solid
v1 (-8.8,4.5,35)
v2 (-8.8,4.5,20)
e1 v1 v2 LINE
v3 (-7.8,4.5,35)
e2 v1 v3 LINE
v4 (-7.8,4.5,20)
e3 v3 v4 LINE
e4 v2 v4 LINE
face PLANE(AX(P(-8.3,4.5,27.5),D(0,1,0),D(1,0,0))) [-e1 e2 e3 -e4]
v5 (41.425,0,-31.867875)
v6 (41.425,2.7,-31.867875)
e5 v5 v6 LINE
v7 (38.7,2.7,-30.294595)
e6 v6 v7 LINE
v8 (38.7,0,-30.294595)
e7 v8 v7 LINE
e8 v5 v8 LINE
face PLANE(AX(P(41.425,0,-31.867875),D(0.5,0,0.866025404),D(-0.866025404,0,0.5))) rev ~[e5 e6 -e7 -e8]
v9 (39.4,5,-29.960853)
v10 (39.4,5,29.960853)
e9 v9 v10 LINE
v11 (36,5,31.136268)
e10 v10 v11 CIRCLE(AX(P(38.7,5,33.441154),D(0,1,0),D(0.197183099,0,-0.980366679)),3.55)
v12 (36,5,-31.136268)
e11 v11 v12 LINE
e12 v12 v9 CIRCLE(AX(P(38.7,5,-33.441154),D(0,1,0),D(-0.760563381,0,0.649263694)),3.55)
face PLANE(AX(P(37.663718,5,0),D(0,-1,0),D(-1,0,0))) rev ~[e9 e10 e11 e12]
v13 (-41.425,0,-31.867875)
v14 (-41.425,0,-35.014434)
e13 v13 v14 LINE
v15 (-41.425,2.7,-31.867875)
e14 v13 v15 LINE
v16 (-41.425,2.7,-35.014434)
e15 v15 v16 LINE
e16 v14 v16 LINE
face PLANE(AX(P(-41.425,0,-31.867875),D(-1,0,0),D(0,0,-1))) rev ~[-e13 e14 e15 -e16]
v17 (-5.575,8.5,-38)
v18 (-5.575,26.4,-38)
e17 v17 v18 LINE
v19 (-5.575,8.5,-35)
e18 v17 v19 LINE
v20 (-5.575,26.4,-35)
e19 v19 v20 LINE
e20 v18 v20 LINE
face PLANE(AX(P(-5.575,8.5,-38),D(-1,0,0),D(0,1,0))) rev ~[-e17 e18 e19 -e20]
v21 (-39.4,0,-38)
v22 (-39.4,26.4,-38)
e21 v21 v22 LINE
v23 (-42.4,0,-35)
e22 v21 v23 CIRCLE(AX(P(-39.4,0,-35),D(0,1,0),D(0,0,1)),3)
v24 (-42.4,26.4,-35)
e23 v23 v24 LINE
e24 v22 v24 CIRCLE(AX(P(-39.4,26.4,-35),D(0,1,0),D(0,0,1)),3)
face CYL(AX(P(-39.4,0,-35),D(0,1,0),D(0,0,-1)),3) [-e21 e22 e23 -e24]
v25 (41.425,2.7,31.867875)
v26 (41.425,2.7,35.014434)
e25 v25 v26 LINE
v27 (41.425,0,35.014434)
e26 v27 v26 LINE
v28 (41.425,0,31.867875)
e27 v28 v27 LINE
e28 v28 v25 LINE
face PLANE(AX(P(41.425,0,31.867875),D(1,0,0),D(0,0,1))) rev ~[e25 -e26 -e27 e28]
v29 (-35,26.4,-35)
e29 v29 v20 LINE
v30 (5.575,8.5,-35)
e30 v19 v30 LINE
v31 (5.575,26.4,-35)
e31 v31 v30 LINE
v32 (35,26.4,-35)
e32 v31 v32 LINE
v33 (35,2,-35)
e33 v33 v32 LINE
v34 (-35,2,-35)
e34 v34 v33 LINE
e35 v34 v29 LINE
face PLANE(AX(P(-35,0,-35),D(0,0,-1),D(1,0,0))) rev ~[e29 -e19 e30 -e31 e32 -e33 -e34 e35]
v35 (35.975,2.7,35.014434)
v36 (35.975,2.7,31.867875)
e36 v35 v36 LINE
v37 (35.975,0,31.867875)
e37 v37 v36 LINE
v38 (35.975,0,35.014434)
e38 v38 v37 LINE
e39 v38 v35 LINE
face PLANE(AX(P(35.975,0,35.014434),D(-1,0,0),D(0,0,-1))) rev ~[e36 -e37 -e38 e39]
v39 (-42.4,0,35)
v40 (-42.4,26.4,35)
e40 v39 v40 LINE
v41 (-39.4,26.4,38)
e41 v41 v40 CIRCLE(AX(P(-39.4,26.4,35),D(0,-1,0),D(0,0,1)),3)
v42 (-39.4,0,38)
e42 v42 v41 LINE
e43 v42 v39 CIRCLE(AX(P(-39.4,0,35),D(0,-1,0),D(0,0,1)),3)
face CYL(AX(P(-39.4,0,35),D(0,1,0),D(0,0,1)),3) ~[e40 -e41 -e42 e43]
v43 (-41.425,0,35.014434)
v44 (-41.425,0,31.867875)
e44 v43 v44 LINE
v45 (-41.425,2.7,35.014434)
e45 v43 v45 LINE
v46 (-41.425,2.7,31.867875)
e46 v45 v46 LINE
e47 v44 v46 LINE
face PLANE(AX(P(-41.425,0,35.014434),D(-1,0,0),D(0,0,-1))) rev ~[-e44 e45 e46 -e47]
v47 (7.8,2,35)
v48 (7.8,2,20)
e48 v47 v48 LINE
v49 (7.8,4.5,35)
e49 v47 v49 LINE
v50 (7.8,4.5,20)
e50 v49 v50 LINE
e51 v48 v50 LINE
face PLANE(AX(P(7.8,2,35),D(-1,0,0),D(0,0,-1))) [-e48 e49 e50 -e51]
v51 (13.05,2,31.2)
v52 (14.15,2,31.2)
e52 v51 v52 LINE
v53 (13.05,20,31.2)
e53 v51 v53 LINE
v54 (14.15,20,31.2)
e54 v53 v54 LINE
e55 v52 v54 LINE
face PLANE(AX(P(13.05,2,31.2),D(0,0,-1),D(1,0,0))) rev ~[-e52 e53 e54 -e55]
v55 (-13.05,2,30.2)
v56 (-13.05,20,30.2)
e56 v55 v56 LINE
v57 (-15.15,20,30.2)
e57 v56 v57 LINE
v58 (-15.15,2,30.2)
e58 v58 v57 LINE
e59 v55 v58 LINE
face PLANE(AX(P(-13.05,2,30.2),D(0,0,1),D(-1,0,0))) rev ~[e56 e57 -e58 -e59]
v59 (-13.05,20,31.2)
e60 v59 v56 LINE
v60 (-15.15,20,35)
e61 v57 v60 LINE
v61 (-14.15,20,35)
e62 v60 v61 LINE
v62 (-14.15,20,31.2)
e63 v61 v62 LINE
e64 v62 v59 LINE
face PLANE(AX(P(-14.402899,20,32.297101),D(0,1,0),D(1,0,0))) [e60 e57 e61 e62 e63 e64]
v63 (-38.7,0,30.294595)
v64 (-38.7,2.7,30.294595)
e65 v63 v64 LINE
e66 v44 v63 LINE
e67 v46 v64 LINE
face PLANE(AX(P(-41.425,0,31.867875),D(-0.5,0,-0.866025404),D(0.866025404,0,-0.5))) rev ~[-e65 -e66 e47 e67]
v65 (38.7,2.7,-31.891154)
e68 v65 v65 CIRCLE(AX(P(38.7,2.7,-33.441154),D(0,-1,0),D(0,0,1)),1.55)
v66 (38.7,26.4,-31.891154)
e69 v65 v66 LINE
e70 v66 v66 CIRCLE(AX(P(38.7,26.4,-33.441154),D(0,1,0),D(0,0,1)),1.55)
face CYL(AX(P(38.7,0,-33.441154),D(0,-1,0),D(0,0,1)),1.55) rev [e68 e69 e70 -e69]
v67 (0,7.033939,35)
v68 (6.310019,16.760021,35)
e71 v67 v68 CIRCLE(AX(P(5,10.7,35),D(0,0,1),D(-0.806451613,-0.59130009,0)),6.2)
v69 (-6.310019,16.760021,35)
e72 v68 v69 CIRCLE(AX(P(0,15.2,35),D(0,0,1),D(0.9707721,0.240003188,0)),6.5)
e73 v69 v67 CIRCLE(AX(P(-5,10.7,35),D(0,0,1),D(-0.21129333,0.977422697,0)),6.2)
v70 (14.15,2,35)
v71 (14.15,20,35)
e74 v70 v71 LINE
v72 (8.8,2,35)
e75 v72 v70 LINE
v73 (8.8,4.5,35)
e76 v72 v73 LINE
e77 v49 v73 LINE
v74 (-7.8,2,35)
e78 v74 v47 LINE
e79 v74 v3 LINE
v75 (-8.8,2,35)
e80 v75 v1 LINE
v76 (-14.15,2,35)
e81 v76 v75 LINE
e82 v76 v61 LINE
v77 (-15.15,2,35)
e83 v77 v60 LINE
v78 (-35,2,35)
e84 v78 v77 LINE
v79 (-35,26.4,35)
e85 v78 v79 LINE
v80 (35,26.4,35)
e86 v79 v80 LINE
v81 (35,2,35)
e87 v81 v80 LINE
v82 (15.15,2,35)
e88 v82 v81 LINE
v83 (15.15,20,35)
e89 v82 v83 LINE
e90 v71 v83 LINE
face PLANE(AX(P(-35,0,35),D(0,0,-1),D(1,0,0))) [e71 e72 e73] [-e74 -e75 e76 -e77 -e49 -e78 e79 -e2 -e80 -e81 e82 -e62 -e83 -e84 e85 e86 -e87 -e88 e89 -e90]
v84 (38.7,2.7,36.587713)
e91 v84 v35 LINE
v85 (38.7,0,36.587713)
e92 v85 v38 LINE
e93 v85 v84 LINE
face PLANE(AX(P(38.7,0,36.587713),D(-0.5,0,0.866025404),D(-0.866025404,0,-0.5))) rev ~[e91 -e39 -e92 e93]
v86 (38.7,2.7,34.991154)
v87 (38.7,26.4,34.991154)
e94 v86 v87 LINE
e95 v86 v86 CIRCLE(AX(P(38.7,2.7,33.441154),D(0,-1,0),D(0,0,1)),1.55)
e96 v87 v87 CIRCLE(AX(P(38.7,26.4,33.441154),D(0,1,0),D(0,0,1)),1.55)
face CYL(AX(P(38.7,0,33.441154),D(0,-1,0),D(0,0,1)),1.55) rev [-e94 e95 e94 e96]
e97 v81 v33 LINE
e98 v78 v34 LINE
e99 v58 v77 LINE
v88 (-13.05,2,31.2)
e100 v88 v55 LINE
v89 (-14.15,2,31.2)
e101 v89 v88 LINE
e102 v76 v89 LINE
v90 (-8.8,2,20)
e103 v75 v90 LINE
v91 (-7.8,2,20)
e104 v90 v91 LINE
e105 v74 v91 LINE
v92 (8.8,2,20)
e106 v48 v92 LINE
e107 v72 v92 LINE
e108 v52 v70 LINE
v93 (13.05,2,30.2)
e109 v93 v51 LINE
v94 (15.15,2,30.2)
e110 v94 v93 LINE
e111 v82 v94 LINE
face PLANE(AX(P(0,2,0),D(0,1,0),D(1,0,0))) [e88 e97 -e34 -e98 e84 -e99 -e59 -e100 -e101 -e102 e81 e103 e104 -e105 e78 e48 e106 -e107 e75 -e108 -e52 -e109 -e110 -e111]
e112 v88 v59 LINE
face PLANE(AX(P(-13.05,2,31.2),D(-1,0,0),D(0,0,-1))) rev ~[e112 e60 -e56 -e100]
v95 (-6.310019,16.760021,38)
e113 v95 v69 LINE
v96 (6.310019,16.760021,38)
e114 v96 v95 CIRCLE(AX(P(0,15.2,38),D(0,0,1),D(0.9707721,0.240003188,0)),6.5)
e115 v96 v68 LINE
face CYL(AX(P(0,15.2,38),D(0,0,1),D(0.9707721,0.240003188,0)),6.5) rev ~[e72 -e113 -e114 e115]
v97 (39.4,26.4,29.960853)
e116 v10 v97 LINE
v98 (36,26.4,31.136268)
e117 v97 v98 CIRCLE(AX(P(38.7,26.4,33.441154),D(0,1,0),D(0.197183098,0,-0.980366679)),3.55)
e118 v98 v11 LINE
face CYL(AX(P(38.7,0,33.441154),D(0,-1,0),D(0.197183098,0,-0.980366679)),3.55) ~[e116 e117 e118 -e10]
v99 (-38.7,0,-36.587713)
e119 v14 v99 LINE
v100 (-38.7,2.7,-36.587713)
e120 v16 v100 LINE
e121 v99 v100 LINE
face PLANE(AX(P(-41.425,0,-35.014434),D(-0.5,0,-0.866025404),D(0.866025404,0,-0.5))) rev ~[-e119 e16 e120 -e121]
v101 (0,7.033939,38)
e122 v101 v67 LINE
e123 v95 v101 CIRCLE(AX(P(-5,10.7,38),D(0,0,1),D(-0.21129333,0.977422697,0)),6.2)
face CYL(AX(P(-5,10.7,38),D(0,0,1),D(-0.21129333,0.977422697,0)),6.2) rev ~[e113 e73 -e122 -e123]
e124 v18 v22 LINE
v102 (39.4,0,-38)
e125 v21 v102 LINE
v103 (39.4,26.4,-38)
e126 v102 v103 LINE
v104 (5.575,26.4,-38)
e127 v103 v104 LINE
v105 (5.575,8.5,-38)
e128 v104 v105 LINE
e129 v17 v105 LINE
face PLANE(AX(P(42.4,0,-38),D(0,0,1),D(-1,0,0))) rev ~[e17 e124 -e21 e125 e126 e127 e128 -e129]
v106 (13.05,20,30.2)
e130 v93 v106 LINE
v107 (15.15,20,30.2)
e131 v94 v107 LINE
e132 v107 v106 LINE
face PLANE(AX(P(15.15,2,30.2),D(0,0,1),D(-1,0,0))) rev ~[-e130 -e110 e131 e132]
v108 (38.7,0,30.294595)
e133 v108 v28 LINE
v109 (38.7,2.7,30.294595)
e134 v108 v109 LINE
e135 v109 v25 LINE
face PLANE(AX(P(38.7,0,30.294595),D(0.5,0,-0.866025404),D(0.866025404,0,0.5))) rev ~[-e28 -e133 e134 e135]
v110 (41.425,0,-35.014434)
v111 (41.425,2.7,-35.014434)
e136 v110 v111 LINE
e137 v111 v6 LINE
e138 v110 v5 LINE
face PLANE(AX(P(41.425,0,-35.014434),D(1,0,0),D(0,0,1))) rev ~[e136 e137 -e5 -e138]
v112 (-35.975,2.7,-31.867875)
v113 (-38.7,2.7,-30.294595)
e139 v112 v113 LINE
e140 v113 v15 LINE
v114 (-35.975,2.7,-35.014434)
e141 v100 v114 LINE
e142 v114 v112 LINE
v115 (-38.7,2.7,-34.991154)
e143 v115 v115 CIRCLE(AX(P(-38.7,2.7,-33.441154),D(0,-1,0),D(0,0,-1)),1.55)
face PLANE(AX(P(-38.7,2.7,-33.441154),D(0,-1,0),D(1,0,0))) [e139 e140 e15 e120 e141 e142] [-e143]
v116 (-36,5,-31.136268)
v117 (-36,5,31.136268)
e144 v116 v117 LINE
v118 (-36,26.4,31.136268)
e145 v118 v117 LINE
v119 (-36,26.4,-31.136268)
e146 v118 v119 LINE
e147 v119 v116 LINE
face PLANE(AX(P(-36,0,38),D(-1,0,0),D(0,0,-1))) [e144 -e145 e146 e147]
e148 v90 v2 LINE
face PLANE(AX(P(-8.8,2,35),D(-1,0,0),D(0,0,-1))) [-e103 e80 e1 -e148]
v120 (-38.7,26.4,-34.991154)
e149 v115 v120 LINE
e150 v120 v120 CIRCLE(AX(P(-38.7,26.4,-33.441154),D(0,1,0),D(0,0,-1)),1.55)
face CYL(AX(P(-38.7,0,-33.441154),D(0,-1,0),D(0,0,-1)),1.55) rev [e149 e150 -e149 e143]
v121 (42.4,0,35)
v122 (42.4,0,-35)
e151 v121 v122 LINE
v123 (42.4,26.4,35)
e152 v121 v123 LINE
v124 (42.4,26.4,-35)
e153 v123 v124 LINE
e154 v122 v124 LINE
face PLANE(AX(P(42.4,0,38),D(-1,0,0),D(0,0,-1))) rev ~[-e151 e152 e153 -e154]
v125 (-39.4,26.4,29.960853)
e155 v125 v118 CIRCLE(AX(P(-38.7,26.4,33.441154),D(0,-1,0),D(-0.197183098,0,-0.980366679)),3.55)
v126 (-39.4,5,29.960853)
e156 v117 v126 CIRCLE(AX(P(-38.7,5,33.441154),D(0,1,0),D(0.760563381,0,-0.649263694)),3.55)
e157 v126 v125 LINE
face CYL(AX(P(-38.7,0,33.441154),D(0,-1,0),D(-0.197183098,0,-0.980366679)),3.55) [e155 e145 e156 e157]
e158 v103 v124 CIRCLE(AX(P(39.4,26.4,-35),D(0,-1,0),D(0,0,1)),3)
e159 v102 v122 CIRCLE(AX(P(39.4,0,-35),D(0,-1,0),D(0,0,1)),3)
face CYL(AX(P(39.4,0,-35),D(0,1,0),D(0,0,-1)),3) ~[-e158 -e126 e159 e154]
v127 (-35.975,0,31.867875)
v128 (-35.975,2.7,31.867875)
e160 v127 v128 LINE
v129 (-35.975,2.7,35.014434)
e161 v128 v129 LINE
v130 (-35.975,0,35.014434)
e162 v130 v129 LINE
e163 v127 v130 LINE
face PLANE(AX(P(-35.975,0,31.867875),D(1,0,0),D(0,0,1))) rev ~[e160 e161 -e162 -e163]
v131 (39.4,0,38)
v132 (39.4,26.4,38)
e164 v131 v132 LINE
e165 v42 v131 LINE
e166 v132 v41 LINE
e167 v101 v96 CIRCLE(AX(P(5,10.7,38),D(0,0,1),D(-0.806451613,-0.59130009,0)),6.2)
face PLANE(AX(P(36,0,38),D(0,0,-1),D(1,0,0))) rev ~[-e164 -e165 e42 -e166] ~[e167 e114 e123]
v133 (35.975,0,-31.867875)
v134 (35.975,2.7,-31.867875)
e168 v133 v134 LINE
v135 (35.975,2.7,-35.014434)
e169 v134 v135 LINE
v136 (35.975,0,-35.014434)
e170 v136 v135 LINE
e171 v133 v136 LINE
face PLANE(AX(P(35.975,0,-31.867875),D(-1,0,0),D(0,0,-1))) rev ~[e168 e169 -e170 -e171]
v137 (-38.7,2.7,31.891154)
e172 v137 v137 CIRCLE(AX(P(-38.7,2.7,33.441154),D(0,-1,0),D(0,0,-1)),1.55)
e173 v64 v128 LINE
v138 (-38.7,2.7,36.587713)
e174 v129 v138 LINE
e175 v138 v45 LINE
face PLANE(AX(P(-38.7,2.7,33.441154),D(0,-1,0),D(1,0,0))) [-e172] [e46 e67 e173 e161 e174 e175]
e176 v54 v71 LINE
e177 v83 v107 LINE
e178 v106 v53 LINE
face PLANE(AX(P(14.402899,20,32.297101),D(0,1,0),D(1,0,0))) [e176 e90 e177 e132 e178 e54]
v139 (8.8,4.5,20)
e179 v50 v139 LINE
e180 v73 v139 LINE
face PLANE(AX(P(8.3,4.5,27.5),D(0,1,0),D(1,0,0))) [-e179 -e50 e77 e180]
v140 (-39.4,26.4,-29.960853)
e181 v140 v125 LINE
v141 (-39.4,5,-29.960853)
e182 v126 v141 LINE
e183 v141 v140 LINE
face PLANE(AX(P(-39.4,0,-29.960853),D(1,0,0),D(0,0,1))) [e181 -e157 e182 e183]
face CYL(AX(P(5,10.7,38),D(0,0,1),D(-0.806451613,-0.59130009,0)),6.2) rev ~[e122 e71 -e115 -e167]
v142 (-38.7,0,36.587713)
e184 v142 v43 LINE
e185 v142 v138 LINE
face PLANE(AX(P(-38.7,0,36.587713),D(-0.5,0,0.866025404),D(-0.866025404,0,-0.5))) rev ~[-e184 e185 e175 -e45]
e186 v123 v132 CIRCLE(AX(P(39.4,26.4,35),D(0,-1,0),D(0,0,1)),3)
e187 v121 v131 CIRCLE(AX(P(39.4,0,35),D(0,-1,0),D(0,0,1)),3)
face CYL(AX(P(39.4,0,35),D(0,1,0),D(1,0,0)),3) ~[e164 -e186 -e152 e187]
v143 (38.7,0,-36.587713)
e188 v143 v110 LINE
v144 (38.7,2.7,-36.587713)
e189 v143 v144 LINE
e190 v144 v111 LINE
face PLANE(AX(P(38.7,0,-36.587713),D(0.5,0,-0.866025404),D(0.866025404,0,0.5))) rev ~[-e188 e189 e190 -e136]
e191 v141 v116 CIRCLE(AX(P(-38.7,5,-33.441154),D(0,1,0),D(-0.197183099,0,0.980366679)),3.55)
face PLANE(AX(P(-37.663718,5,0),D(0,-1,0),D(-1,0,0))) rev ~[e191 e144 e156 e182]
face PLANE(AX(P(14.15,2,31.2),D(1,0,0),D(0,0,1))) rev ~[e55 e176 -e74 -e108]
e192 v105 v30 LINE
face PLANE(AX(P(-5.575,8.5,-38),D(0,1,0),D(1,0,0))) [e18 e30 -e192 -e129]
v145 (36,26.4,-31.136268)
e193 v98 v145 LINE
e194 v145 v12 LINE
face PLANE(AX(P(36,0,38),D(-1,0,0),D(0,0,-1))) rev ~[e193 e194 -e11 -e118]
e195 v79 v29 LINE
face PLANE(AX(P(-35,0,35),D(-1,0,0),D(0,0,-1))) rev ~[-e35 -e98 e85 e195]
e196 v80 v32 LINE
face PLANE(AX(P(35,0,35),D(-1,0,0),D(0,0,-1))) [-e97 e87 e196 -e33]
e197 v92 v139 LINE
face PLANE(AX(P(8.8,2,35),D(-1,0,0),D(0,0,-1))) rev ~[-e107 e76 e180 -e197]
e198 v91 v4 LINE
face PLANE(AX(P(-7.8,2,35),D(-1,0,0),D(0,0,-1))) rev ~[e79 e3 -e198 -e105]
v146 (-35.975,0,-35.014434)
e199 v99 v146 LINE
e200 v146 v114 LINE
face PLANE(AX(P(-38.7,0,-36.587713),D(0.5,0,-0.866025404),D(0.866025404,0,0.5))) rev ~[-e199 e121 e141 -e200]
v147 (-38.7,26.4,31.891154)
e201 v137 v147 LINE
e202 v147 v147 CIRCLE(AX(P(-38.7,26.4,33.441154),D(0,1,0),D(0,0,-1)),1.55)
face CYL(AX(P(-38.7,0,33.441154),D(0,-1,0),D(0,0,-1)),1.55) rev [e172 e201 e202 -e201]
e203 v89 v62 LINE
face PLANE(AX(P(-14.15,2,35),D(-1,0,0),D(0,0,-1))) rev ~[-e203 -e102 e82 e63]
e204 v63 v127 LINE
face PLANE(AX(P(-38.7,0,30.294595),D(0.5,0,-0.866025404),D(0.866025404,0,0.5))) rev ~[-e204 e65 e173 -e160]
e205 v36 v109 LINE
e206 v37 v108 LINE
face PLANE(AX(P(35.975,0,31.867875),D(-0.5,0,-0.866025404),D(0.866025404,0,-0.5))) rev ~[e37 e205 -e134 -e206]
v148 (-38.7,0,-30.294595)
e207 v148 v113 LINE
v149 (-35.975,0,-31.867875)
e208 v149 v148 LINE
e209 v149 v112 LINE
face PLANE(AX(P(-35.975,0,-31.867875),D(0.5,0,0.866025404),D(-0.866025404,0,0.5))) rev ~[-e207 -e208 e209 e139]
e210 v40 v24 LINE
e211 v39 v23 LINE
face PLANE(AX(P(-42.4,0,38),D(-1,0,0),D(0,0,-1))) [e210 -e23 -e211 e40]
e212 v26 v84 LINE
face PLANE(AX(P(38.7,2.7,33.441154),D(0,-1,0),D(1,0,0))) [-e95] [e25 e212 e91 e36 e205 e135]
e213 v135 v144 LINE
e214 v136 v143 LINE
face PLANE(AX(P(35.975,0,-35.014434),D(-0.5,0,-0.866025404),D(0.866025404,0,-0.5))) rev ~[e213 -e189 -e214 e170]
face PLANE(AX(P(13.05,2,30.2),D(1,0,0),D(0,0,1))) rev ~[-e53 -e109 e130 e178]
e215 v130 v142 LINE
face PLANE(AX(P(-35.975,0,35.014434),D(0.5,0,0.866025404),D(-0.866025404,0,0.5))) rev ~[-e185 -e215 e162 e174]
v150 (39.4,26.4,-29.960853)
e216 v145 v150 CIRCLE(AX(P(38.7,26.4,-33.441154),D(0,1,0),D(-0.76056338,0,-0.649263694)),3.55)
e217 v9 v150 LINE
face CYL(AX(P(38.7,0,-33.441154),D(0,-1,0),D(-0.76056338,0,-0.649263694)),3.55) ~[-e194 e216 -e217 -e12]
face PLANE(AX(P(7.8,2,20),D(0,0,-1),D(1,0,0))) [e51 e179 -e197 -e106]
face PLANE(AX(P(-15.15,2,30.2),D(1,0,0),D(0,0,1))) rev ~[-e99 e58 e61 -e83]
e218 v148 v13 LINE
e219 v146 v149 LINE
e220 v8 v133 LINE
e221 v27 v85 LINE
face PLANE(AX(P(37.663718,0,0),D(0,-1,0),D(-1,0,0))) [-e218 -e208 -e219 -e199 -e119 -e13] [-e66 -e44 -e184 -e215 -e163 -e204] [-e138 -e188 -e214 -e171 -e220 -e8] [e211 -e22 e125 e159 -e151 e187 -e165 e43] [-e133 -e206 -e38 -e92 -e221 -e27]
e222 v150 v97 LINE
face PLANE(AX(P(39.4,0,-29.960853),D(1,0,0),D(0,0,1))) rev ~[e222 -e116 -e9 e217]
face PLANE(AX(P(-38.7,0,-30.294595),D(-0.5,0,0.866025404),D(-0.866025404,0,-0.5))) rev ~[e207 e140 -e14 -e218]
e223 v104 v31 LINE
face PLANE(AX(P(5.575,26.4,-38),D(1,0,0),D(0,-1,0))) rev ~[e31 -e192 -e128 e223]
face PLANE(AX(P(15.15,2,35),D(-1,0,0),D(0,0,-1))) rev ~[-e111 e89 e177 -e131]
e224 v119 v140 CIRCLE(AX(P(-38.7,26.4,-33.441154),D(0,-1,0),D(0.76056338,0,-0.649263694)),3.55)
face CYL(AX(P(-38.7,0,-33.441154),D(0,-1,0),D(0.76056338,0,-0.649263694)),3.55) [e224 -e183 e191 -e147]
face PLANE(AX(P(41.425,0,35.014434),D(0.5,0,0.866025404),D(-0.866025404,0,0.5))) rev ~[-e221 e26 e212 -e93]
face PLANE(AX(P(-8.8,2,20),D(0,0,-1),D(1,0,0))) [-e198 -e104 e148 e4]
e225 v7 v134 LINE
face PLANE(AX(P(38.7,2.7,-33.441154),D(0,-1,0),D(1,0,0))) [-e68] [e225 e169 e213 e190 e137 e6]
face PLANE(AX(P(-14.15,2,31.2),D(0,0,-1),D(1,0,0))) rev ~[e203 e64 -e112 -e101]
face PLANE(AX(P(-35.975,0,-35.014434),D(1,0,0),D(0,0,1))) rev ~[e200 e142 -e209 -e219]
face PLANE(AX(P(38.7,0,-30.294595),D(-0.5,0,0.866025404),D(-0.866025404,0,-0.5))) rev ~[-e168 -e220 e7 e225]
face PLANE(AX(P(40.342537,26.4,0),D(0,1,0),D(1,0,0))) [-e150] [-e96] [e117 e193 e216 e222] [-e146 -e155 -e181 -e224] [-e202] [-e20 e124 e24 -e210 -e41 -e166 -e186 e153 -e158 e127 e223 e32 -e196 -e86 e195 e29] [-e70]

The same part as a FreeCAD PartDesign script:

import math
import FreeCAD as App
import Part
import Sketcher
Q = App.Units.Quantity


def edges_at(feature, points):
    """Names of the edges that pass closest to the given points."""
    edges = feature.Shape.Edges
    near = lambda p: min(range(len(edges)), key=lambda i: edges[i].distToShape(Part.Vertex(*p))[0])
    return sorted({f"Edge{near(p) + 1}" for p in points})

doc = App.newDocument("Part")
params = doc.addObject("Spreadsheet::Sheet", "Params")
for row, (alias, value) in enumerate([
    ("sketch1_width", "70 mm"),
    ("pad1_length", "2 mm"),
    ("sketch2_width", "1 mm"),
    ("sketch2_width2", "1.1 mm"),
    ("sketch2_height", "3.8 mm"),
    ("pad2_length", "18 mm"),
    ("sketch3_width", "1 mm"),
    ("sketch3_height", "15 mm"),
    ("pad3_length", "2.5 mm"),
    ("sketch4_width", "72 mm"),
    ("sketch4_width2", "70 mm"),
    ("sketch4_height", "76 mm"),
    ("pad4_length", "26.4 mm"),
    ("sketch5_diameter", "3.1 mm"),
    ("sketch5_height", "76 mm"),
    ("sketch5_radius", "3.55 mm"),
    ("sketch5_width", "6.4 mm"),
    ("pad5_length", "26.4 mm"),
    ("sketch6_radius", "3.55 mm"),
    ("pad6_length", "5 mm"),
    ("sketch7_radius", "6.5 mm"),
    ("sketch7_radius2", "6.2 mm"),
    ("pocket1_length", "25 mm"),
    ("fillet_radius", "3 mm"),
    ("pocket2_length", "2.7 mm"),
    ("sketch9_height", "17.9 mm"),
    ("sketch9_width", "11.15 mm"),
    ("pocket3_length", "10 mm"),
], start=1):
    params.set(f"A{row}", alias)
    params.set(f"B{row}", "=" + value)
    params.setAlias(f"B{row}", alias)

body = doc.addObject("PartDesign::Body", "Body")

# Sketch on XZ plane
sketch1 = doc.addObject("Sketcher::SketchObject", "Sketch")
body.addObject(sketch1)
sketch1.AttachmentSupport = (doc.XZ_Plane, [""])
sketch1.MapMode = "FlatFace"
sketch1.addGeometry(Part.LineSegment(App.Vector(-35, -35, 0), App.Vector(-35, 35, 0)), False)
sketch1.addGeometry(Part.LineSegment(App.Vector(-35, 35, 0), App.Vector(35, 35, 0)), False)
sketch1.addGeometry(Part.LineSegment(App.Vector(35, 35, 0), App.Vector(35, -35, 0)), False)
sketch1.addGeometry(Part.LineSegment(App.Vector(35, -35, 0), App.Vector(-35, -35, 0)), False)
sketch1.addConstraint(Sketcher.Constraint("Coincident", 0, 2, 1, 1))
sketch1.addConstraint(Sketcher.Constraint("Coincident", 1, 2, 2, 1))
sketch1.addConstraint(Sketcher.Constraint("Coincident", 2, 2, 3, 1))
sketch1.addConstraint(Sketcher.Constraint("Coincident", 3, 2, 0, 1))
sketch1.addConstraint(Sketcher.Constraint("Vertical", 0))
sketch1.addConstraint(Sketcher.Constraint("Horizontal", 1))
sketch1.addConstraint(Sketcher.Constraint("Vertical", 2))
sketch1.addConstraint(Sketcher.Constraint("Horizontal", 3))
sketch1.addConstraint(Sketcher.Constraint("Symmetric", 0, 2, 2, 2, -1, 1))
sketch1.addConstraint(Sketcher.Constraint("Equal", 3, 0))
sketch1.addConstraint(Sketcher.Constraint("DistanceX", 1, 1, 1, 2, Q("70 mm")))
sketch1.setExpression("Constraints[10]", "Params.sketch1_width")
pad1 = doc.addObject("PartDesign::Pad", "Pad")
body.addObject(pad1)
pad1.Profile = sketch1
pad1.setExpression("Length", "Params.pad1_length")
pad1.Reversed = True

# Sketch on XZ plane
sketch2 = doc.addObject("Sketcher::SketchObject", "Sketch001")
body.addObject(sketch2)
sketch2.AttachmentSupport = (doc.XZ_Plane, [""])
sketch2.MapMode = "FlatFace"
sketch2.AttachmentOffset = App.Placement(App.Vector(0, 0, -2), App.Rotation())
sketch2.addGeometry(Part.LineSegment(App.Vector(13.1, 31.2, 0), App.Vector(14.2, 31.2, 0)), False)
sketch2.addGeometry(Part.LineSegment(App.Vector(14.2, 31.2, 0), App.Vector(14.2, 35, 0)), False)
sketch2.addGeometry(Part.LineSegment(App.Vector(14.2, 35, 0), App.Vector(15.2, 35, 0)), False)
sketch2.addGeometry(Part.LineSegment(App.Vector(15.2, 35, 0), App.Vector(15.2, 30.2, 0)), False)
sketch2.addGeometry(Part.LineSegment(App.Vector(15.2, 30.2, 0), App.Vector(13.1, 30.2, 0)), False)
sketch2.addGeometry(Part.LineSegment(App.Vector(13.1, 30.2, 0), App.Vector(13.1, 31.2, 0)), False)
sketch2.addGeometry(Part.LineSegment(App.Vector(-15.2, 35, 0), App.Vector(-14.2, 35, 0)), False)
sketch2.addGeometry(Part.LineSegment(App.Vector(-14.2, 35, 0), App.Vector(-14.2, 31.2, 0)), False)
sketch2.addGeometry(Part.LineSegment(App.Vector(-14.2, 31.2, 0), App.Vector(-13.1, 31.2, 0)), False)
sketch2.addGeometry(Part.LineSegment(App.Vector(-13.1, 31.2, 0), App.Vector(-13.1, 30.2, 0)), False)
sketch2.addGeometry(Part.LineSegment(App.Vector(-13.1, 30.2, 0), App.Vector(-15.2, 30.2, 0)), False)
sketch2.addGeometry(Part.LineSegment(App.Vector(-15.2, 30.2, 0), App.Vector(-15.2, 35, 0)), False)
sketch2.addConstraint(Sketcher.Constraint("Coincident", 0, 2, 1, 1))
sketch2.addConstraint(Sketcher.Constraint("Coincident", 1, 2, 2, 1))
sketch2.addConstraint(Sketcher.Constraint("Coincident", 2, 2, 3, 1))
sketch2.addConstraint(Sketcher.Constraint("Coincident", 3, 2, 4, 1))
sketch2.addConstraint(Sketcher.Constraint("Coincident", 4, 2, 5, 1))
sketch2.addConstraint(Sketcher.Constraint("Coincident", 5, 2, 0, 1))
sketch2.addConstraint(Sketcher.Constraint("Coincident", 6, 2, 7, 1))
sketch2.addConstraint(Sketcher.Constraint("Coincident", 7, 2, 8, 1))
sketch2.addConstraint(Sketcher.Constraint("Coincident", 8, 2, 9, 1))
sketch2.addConstraint(Sketcher.Constraint("Coincident", 9, 2, 10, 1))
sketch2.addConstraint(Sketcher.Constraint("Coincident", 10, 2, 11, 1))
sketch2.addConstraint(Sketcher.Constraint("Coincident", 11, 2, 6, 1))
sketch2.addConstraint(Sketcher.Constraint("Horizontal", 0))
sketch2.addConstraint(Sketcher.Constraint("Vertical", 1))
sketch2.addConstraint(Sketcher.Constraint("Horizontal", 2))
sketch2.addConstraint(Sketcher.Constraint("Vertical", 3))
sketch2.addConstraint(Sketcher.Constraint("Horizontal", 4))
sketch2.addConstraint(Sketcher.Constraint("Vertical", 5))
sketch2.addConstraint(Sketcher.Constraint("Horizontal", 6))
sketch2.addConstraint(Sketcher.Constraint("Vertical", 7))
sketch2.addConstraint(Sketcher.Constraint("Horizontal", 8))
sketch2.addConstraint(Sketcher.Constraint("Vertical", 9))
sketch2.addConstraint(Sketcher.Constraint("Horizontal", 10))
sketch2.addConstraint(Sketcher.Constraint("Vertical", 11))
sketch2.addConstraint(Sketcher.Constraint("Symmetric", 1, 2, 6, 2, -2))
sketch2.addConstraint(Sketcher.Constraint("Symmetric", 5, 2, 8, 2, -2))
sketch2.addConstraint(Sketcher.Constraint("Symmetric", 3, 2, 10, 2, -2))
sketch2.addConstraint(Sketcher.Constraint("Equal", 6, 5))
sketch2.addConstraint(Sketcher.Constraint("DistanceX", 2, 1, 2, 2, Q("1 mm")))
sketch2.addConstraint(Sketcher.Constraint("DistanceX", 0, 1, 0, 2, Q("1.1 mm")))
sketch2.addConstraint(Sketcher.Constraint("DistanceY", 1, 1, 1, 2, Q("3.8 mm")))
sketch2.addConstraint(Sketcher.Constraint("DistanceY", -1, 1, 1, 2, Q("35 mm")))
sketch2.addConstraint(Sketcher.Constraint("DistanceX", 6, 2, 5, 2, Q("27.2 mm")))
sketch2.setExpression("Constraints[28]", "Params.sketch2_width")
sketch2.setExpression("Constraints[29]", "Params.sketch2_width2")
sketch2.setExpression("Constraints[30]", "Params.sketch2_height")
pad2 = doc.addObject("PartDesign::Pad", "Pad001")
body.addObject(pad2)
pad2.Profile = sketch2
pad2.setExpression("Length", "Params.pad2_length")
pad2.Reversed = True

# Sketch on XZ plane
sketch3 = doc.addObject("Sketcher::SketchObject", "Sketch002")
body.addObject(sketch3)
sketch3.AttachmentSupport = (doc.XZ_Plane, [""])
sketch3.MapMode = "FlatFace"
sketch3.AttachmentOffset = App.Placement(App.Vector(0, 0, -2), App.Rotation())
sketch3.addGeometry(Part.LineSegment(App.Vector(-8.8, 20, 0), App.Vector(-8.8, 35, 0)), False)
sketch3.addGeometry(Part.LineSegment(App.Vector(-8.8, 35, 0), App.Vector(-7.8, 35, 0)), False)
sketch3.addGeometry(Part.LineSegment(App.Vector(-7.8, 35, 0), App.Vector(-7.8, 20, 0)), False)
sketch3.addGeometry(Part.LineSegment(App.Vector(-7.8, 20, 0), App.Vector(-8.8, 20, 0)), False)
sketch3.addGeometry(Part.LineSegment(App.Vector(7.8, 20, 0), App.Vector(7.8, 35, 0)), False)
sketch3.addGeometry(Part.LineSegment(App.Vector(7.8, 35, 0), App.Vector(8.8, 35, 0)), False)
sketch3.addGeometry(Part.LineSegment(App.Vector(8.8, 35, 0), App.Vector(8.8, 20, 0)), False)
sketch3.addGeometry(Part.LineSegment(App.Vector(8.8, 20, 0), App.Vector(7.8, 20, 0)), False)
sketch3.addConstraint(Sketcher.Constraint("Coincident", 0, 2, 1, 1))
sketch3.addConstraint(Sketcher.Constraint("Coincident", 1, 2, 2, 1))
sketch3.addConstraint(Sketcher.Constraint("Coincident", 2, 2, 3, 1))
sketch3.addConstraint(Sketcher.Constraint("Coincident", 3, 2, 0, 1))
sketch3.addConstraint(Sketcher.Constraint("Coincident", 4, 2, 5, 1))
sketch3.addConstraint(Sketcher.Constraint("Coincident", 5, 2, 6, 1))
sketch3.addConstraint(Sketcher.Constraint("Coincident", 6, 2, 7, 1))
sketch3.addConstraint(Sketcher.Constraint("Coincident", 7, 2, 4, 1))
sketch3.addConstraint(Sketcher.Constraint("Vertical", 0))
sketch3.addConstraint(Sketcher.Constraint("Horizontal", 1))
sketch3.addConstraint(Sketcher.Constraint("Vertical", 2))
sketch3.addConstraint(Sketcher.Constraint("Horizontal", 3))
sketch3.addConstraint(Sketcher.Constraint("Vertical", 4))
sketch3.addConstraint(Sketcher.Constraint("Horizontal", 5))
sketch3.addConstraint(Sketcher.Constraint("Vertical", 6))
sketch3.addConstraint(Sketcher.Constraint("Horizontal", 7))
sketch3.addConstraint(Sketcher.Constraint("Symmetric", 1, 2, 4, 2, -2))
sketch3.addConstraint(Sketcher.Constraint("Symmetric", 3, 2, 6, 2, -2))
sketch3.addConstraint(Sketcher.Constraint("DistanceX", 1, 1, 1, 2, Q("1 mm")))
sketch3.addConstraint(Sketcher.Constraint("DistanceY", 0, 1, 0, 2, Q("15 mm")))
sketch3.addConstraint(Sketcher.Constraint("DistanceY", -1, 1, 0, 2, Q("35 mm")))
sketch3.addConstraint(Sketcher.Constraint("DistanceX", 0, 2, -1, 1, Q("8.8 mm")))
sketch3.setExpression("Constraints[18]", "Params.sketch3_width")
sketch3.setExpression("Constraints[19]", "Params.sketch3_height")
pad3 = doc.addObject("PartDesign::Pad", "Pad002")
body.addObject(pad3)
pad3.Profile = sketch3
pad3.setExpression("Length", "Params.pad3_length")
pad3.Reversed = True

# Sketch on XZ plane
sketch4 = doc.addObject("Sketcher::SketchObject", "Sketch003")
body.addObject(sketch4)
sketch4.AttachmentSupport = (doc.XZ_Plane, [""])
sketch4.MapMode = "FlatFace"
sketch4.addGeometry(Part.LineSegment(App.Vector(-36, -38, 0), App.Vector(-36, 38, 0)), False)
sketch4.addGeometry(Part.LineSegment(App.Vector(-36, 38, 0), App.Vector(36, 38, 0)), False)
sketch4.addGeometry(Part.LineSegment(App.Vector(36, 38, 0), App.Vector(36, -38, 0)), False)
sketch4.addGeometry(Part.LineSegment(App.Vector(36, -38, 0), App.Vector(-36, -38, 0)), False)
sketch4.addGeometry(Part.LineSegment(App.Vector(35, 35, 0), App.Vector(-35, 35, 0)), False)
sketch4.addGeometry(Part.LineSegment(App.Vector(-35, 35, 0), App.Vector(-35, -35, 0)), False)
sketch4.addGeometry(Part.LineSegment(App.Vector(-35, -35, 0), App.Vector(35, -35, 0)), False)
sketch4.addGeometry(Part.LineSegment(App.Vector(35, -35, 0), App.Vector(35, 35, 0)), False)
sketch4.addConstraint(Sketcher.Constraint("Coincident", 0, 2, 1, 1))
sketch4.addConstraint(Sketcher.Constraint("Coincident", 1, 2, 2, 1))
sketch4.addConstraint(Sketcher.Constraint("Coincident", 2, 2, 3, 1))
sketch4.addConstraint(Sketcher.Constraint("Coincident", 3, 2, 0, 1))
sketch4.addConstraint(Sketcher.Constraint("Coincident", 4, 2, 5, 1))
sketch4.addConstraint(Sketcher.Constraint("Coincident", 5, 2, 6, 1))
sketch4.addConstraint(Sketcher.Constraint("Coincident", 6, 2, 7, 1))
sketch4.addConstraint(Sketcher.Constraint("Coincident", 7, 2, 4, 1))
sketch4.addConstraint(Sketcher.Constraint("Vertical", 0))
sketch4.addConstraint(Sketcher.Constraint("Horizontal", 1))
sketch4.addConstraint(Sketcher.Constraint("Vertical", 2))
sketch4.addConstraint(Sketcher.Constraint("Horizontal", 3))
sketch4.addConstraint(Sketcher.Constraint("Horizontal", 4))
sketch4.addConstraint(Sketcher.Constraint("Vertical", 5))
sketch4.addConstraint(Sketcher.Constraint("Horizontal", 6))
sketch4.addConstraint(Sketcher.Constraint("Vertical", 7))
sketch4.addConstraint(Sketcher.Constraint("Symmetric", 0, 2, 2, 2, -1, 1))
sketch4.addConstraint(Sketcher.Constraint("Symmetric", 4, 2, 6, 2, -1, 1))
sketch4.addConstraint(Sketcher.Constraint("Equal", 6, 5))
sketch4.addConstraint(Sketcher.Constraint("DistanceX", 1, 1, 1, 2, Q("72 mm")))
sketch4.addConstraint(Sketcher.Constraint("DistanceX", 4, 2, 4, 1, Q("70 mm")))
sketch4.addConstraint(Sketcher.Constraint("DistanceY", 0, 1, 0, 2, Q("76 mm")))
sketch4.setExpression("Constraints[19]", "Params.sketch4_width")
sketch4.setExpression("Constraints[20]", "Params.sketch4_width2")
sketch4.setExpression("Constraints[21]", "Params.sketch4_height")
pad4 = doc.addObject("PartDesign::Pad", "Pad003")
body.addObject(pad4)
pad4.Profile = sketch4
pad4.setExpression("Length", "Params.pad4_length")
pad4.Reversed = True

# Sketch on XZ plane
sketch5 = doc.addObject("Sketcher::SketchObject", "Sketch004")
body.addObject(sketch5)
sketch5.AttachmentSupport = (doc.XZ_Plane, [""])
sketch5.MapMode = "FlatFace"
sketch5.addGeometry(Part.LineSegment(App.Vector(36, 38, 0), App.Vector(42.4, 38, 0)), False)
sketch5.addGeometry(Part.LineSegment(App.Vector(42.4, 38, 0), App.Vector(42.4, -38, 0)), False)
sketch5.addGeometry(Part.LineSegment(App.Vector(42.4, -38, 0), App.Vector(36, -38, 0)), False)
sketch5.addGeometry(Part.LineSegment(App.Vector(36, -38, 0), App.Vector(36, -35.7, 0)), False)
sketch5.addGeometry(Part.ArcOfCircle(Part.Circle(App.Vector(38.7, -33.4, 0), App.Vector(0, 0, 1), 3.6), math.radians(79), math.radians(220)), False)
sketch5.addGeometry(Part.LineSegment(App.Vector(39.4, -30, 0), App.Vector(39.4, 30, 0)), False)
sketch5.addGeometry(Part.ArcOfCircle(Part.Circle(App.Vector(38.7, 33.4, 0), App.Vector(0, 0, 1), 3.6), math.radians(140), math.radians(281)), False)
sketch5.addGeometry(Part.LineSegment(App.Vector(36, 35.7, 0), App.Vector(36, 38, 0)), False)
sketch5.addGeometry(Part.Circle(App.Vector(38.7, 33.4, 0), App.Vector(0, 0, 1), 1.6), False)
sketch5.addGeometry(Part.Circle(App.Vector(38.7, -33.4, 0), App.Vector(0, 0, 1), 1.6), False)
sketch5.addGeometry(Part.LineSegment(App.Vector(-36, -35.7, 0), App.Vector(-36, -38, 0)), False)
sketch5.addGeometry(Part.LineSegment(App.Vector(-36, -38, 0), App.Vector(-42.4, -38, 0)), False)
sketch5.addGeometry(Part.LineSegment(App.Vector(-42.4, -38, 0), App.Vector(-42.4, 38, 0)), False)
sketch5.addGeometry(Part.LineSegment(App.Vector(-42.4, 38, 0), App.Vector(-36, 38, 0)), False)
sketch5.addGeometry(Part.LineSegment(App.Vector(-36, 38, 0), App.Vector(-36, 35.7, 0)), False)
sketch5.addGeometry(Part.ArcOfCircle(Part.Circle(App.Vector(-38.7, 33.4, 0), App.Vector(0, 0, 1), 3.6), math.radians(-101), math.radians(40)), False)
sketch5.addGeometry(Part.LineSegment(App.Vector(-39.4, 30, 0), App.Vector(-39.4, -30, 0)), False)
sketch5.addGeometry(Part.ArcOfCircle(Part.Circle(App.Vector(-38.7, -33.4, 0), App.Vector(0, 0, 1), 3.6), math.radians(-40), math.radians(101)), False)
sketch5.addGeometry(Part.Circle(App.Vector(-38.7, 33.4, 0), App.Vector(0, 0, 1), 1.6), False)
sketch5.addGeometry(Part.Circle(App.Vector(-38.7, -33.4, 0), App.Vector(0, 0, 1), 1.6), False)
sketch5.addConstraint(Sketcher.Constraint("Coincident", 0, 2, 1, 1))
sketch5.addConstraint(Sketcher.Constraint("Coincident", 1, 2, 2, 1))
sketch5.addConstraint(Sketcher.Constraint("Coincident", 2, 2, 3, 1))
sketch5.addConstraint(Sketcher.Constraint("Coincident", 3, 2, 4, 2))
sketch5.addConstraint(Sketcher.Constraint("Coincident", 4, 1, 5, 1))
sketch5.addConstraint(Sketcher.Constraint("Coincident", 5, 2, 6, 2))
sketch5.addConstraint(Sketcher.Constraint("Coincident", 6, 1, 7, 1))
sketch5.addConstraint(Sketcher.Constraint("Coincident", 7, 2, 0, 1))
sketch5.addConstraint(Sketcher.Constraint("Coincident", 10, 2, 11, 1))
sketch5.addConstraint(Sketcher.Constraint("Coincident", 11, 2, 12, 1))
sketch5.addConstraint(Sketcher.Constraint("Coincident", 12, 2, 13, 1))
sketch5.addConstraint(Sketcher.Constraint("Coincident", 13, 2, 14, 1))
sketch5.addConstraint(Sketcher.Constraint("Coincident", 14, 2, 15, 2))
sketch5.addConstraint(Sketcher.Constraint("Coincident", 15, 1, 16, 1))
sketch5.addConstraint(Sketcher.Constraint("Coincident", 16, 2, 17, 2))
sketch5.addConstraint(Sketcher.Constraint("Coincident", 17, 1, 10, 1))
sketch5.addConstraint(Sketcher.Constraint("Horizontal", 0))
sketch5.addConstraint(Sketcher.Constraint("Vertical", 1))
sketch5.addConstraint(Sketcher.Constraint("Horizontal", 2))
sketch5.addConstraint(Sketcher.Constraint("Vertical", 3))
sketch5.addConstraint(Sketcher.Constraint("Vertical", 5))
sketch5.addConstraint(Sketcher.Constraint("Vertical", 7))
sketch5.addConstraint(Sketcher.Constraint("Vertical", 10))
sketch5.addConstraint(Sketcher.Constraint("Horizontal", 11))
sketch5.addConstraint(Sketcher.Constraint("Vertical", 12))
sketch5.addConstraint(Sketcher.Constraint("Horizontal", 13))
sketch5.addConstraint(Sketcher.Constraint("Vertical", 14))
sketch5.addConstraint(Sketcher.Constraint("Vertical", 16))
sketch5.addConstraint(Sketcher.Constraint("Coincident", 8, 3, 6, 3))
sketch5.addConstraint(Sketcher.Constraint("Coincident", 9, 3, 4, 3))
sketch5.addConstraint(Sketcher.Constraint("Coincident", 18, 3, 15, 3))
sketch5.addConstraint(Sketcher.Constraint("Coincident", 19, 3, 17, 3))
sketch5.addConstraint(Sketcher.Constraint("Equal", 4, 6))
sketch5.addConstraint(Sketcher.Constraint("Equal", 8, 9))
sketch5.addConstraint(Sketcher.Constraint("Equal", 6, 15))
sketch5.addConstraint(Sketcher.Constraint("Equal", 15, 17))
sketch5.addConstraint(Sketcher.Constraint("Equal", 9, 18))
sketch5.addConstraint(Sketcher.Constraint("Equal", 18, 19))
sketch5.addConstraint(Sketcher.Constraint("Symmetric", 4, 3, 15, 3, -1, 1))
sketch5.addConstraint(Sketcher.Constraint("Symmetric", 6, 3, 17, 3, -1, 1))
sketch5.addConstraint(Sketcher.Constraint("Symmetric", 7, 2, 10, 2, -1, 1))
sketch5.addConstraint(Sketcher.Constraint("Symmetric", 1, 2, 12, 2, -1, 1))
sketch5.addConstraint(Sketcher.Constraint("Symmetric", 6, 3, 15, 3, -2))
sketch5.addConstraint(Sketcher.Constraint("Symmetric", 2, 2, 10, 2, -2))
sketch5.addConstraint(Sketcher.Constraint("Horizontal", 6, 1, 14, 2))
sketch5.addConstraint(Sketcher.Constraint("Horizontal", 5, 2, 15, 1))
sketch5.addConstraint(Sketcher.Constraint("Diameter", 8, Q("3.1 mm")))
sketch5.addConstraint(Sketcher.Constraint("DistanceY", 1, 2, 1, 1, Q("76 mm")))
sketch5.addConstraint(Sketcher.Constraint("Radius", 4, Q("3.55 mm")))
sketch5.addConstraint(Sketcher.Constraint("DistanceX", 0, 1, 0, 2, Q("6.4 mm")))
sketch5.addConstraint(Sketcher.Constraint("DistanceX", -1, 1, 2, 2, Q("36 mm")))
sketch5.addConstraint(Sketcher.Constraint("DistanceX", 4, 1, 1, 2, Q("3 mm")))
sketch5.addConstraint(Sketcher.Constraint("DistanceX", -1, 1, 4, 3, Q("38.7 mm")))
sketch5.addConstraint(Sketcher.Constraint("DistanceY", 3, 1, 3, 2, Q("2.25396 mm")))
sketch5.setExpression("Constraints[46]", "Params.sketch5_diameter")
sketch5.setExpression("Constraints[47]", "Params.sketch5_height")
sketch5.setExpression("Constraints[48]", "Params.sketch5_radius")
sketch5.setExpression("Constraints[49]", "Params.sketch5_width")
pad5 = doc.addObject("PartDesign::Pad", "Pad004")
body.addObject(pad5)
pad5.Profile = sketch5
pad5.setExpression("Length", "Params.pad5_length")
pad5.Reversed = True

# Sketch on XZ plane
sketch6 = doc.addObject("Sketcher::SketchObject", "Sketch005")
body.addObject(sketch6)
sketch6.AttachmentSupport = (doc.XZ_Plane, [""])
sketch6.MapMode = "FlatFace"
sketch6.addGeometry(Part.LineSegment(App.Vector(39.4, 30, 0), App.Vector(39.4, -30, 0)), False)
sketch6.addGeometry(Part.ArcOfCircle(Part.Circle(App.Vector(38.7, -33.4, 0), App.Vector(0, 0, 1), 3.5), math.radians(79), math.radians(140)), False)
sketch6.addGeometry(Part.LineSegment(App.Vector(36, -31.1, 0), App.Vector(36, 31.1, 0)), False)
sketch6.addGeometry(Part.ArcOfCircle(Part.Circle(App.Vector(38.7, 33.4, 0), App.Vector(0, 0, 1), 3.5), math.radians(-140), math.radians(-79)), False)
sketch6.addGeometry(Part.LineSegment(App.Vector(-39.4, -30, 0), App.Vector(-39.4, 30, 0)), False)
sketch6.addGeometry(Part.ArcOfCircle(Part.Circle(App.Vector(-38.7, 33.4, 0), App.Vector(0, 0, 1), 3.5), math.radians(-101), math.radians(-40)), False)
sketch6.addGeometry(Part.LineSegment(App.Vector(-36, 31.1, 0), App.Vector(-36, -31.1, 0)), False)
sketch6.addGeometry(Part.ArcOfCircle(Part.Circle(App.Vector(-38.7, -33.4, 0), App.Vector(0, 0, 1), 3.5), math.radians(40), math.radians(101)), False)
sketch6.addConstraint(Sketcher.Constraint("Coincident", 0, 2, 1, 1))
sketch6.addConstraint(Sketcher.Constraint("Coincident", 1, 2, 2, 1))
sketch6.addConstraint(Sketcher.Constraint("Coincident", 2, 2, 3, 1))
sketch6.addConstraint(Sketcher.Constraint("Coincident", 3, 2, 0, 1))
sketch6.addConstraint(Sketcher.Constraint("Coincident", 4, 2, 5, 1))
sketch6.addConstraint(Sketcher.Constraint("Coincident", 5, 2, 6, 1))
sketch6.addConstraint(Sketcher.Constraint("Coincident", 6, 2, 7, 1))
sketch6.addConstraint(Sketcher.Constraint("Coincident", 7, 2, 4, 1))
sketch6.addConstraint(Sketcher.Constraint("Vertical", 0))
sketch6.addConstraint(Sketcher.Constraint("Vertical", 2))
sketch6.addConstraint(Sketcher.Constraint("Vertical", 4))
sketch6.addConstraint(Sketcher.Constraint("Vertical", 6))
sketch6.addConstraint(Sketcher.Constraint("Equal", 1, 3))
sketch6.addConstraint(Sketcher.Constraint("Equal", 3, 5))
sketch6.addConstraint(Sketcher.Constraint("Equal", 5, 7))
sketch6.addConstraint(Sketcher.Constraint("Symmetric", 1, 3, 5, 3, -1, 1))
sketch6.addConstraint(Sketcher.Constraint("Symmetric", 3, 3, 7, 3, -1, 1))
sketch6.addConstraint(Sketcher.Constraint("Symmetric", 3, 3, 5, 3, -2))
sketch6.addConstraint(Sketcher.Constraint("Horizontal", 3, 2, 4, 2))
sketch6.addConstraint(Sketcher.Constraint("Horizontal", 2, 2, 5, 2))
sketch6.addConstraint(Sketcher.Constraint("Radius", 1, Q("3.55 mm")))
sketch6.addConstraint(Sketcher.Constraint("DistanceX", -1, 1, 1, 2, Q("36 mm")))
sketch6.addConstraint(Sketcher.Constraint("DistanceX", -1, 1, 1, 3, Q("38.7 mm")))
sketch6.addConstraint(Sketcher.Constraint("DistanceX", -1, 1, 0, 2, Q("39.4 mm")))
sketch6.addConstraint(Sketcher.Constraint("DistanceY", 0, 2, 0, 1, Q("59.921705 mm")))
sketch6.setExpression("Constraints[20]", "Params.sketch6_radius")
pad6 = doc.addObject("PartDesign::Pad", "Pad005")
body.addObject(pad6)
pad6.Profile = sketch6
pad6.setExpression("Length", "Params.pad6_length")
pad6.Reversed = True

# Sketch on XY plane
sketch7 = doc.addObject("Sketcher::SketchObject", "Sketch006")
body.addObject(sketch7)
sketch7.AttachmentSupport = (doc.XY_Plane, [""])
sketch7.MapMode = "FlatFace"
sketch7.AttachmentOffset = App.Placement(App.Vector(0, 0, 38), App.Rotation())
sketch7.addGeometry(Part.ArcOfCircle(Part.Circle(App.Vector(0, 15, 0), App.Vector(0, 0, 1), 6), math.radians(14), math.radians(166)), False)
sketch7.addGeometry(Part.ArcOfCircle(Part.Circle(App.Vector(-5, 11, 0), App.Vector(0, 0, 1), 6), math.radians(102), math.radians(324)), False)
sketch7.addGeometry(Part.ArcOfCircle(Part.Circle(App.Vector(5, 11, 0), App.Vector(0, 0, 1), 6), math.radians(-144), math.radians(78)), False)
sketch7.addConstraint(Sketcher.Constraint("Coincident", 0, 2, 1, 1))
sketch7.addConstraint(Sketcher.Constraint("Coincident", 1, 2, 2, 1))
sketch7.addConstraint(Sketcher.Constraint("Coincident", 2, 2, 0, 1))
sketch7.addConstraint(Sketcher.Constraint("Equal", 1, 2))
sketch7.addConstraint(Sketcher.Constraint("Symmetric", 1, 3, 2, 3, -2))
sketch7.addConstraint(Sketcher.Constraint("PointOnObject", 0, 3, -2))
sketch7.addConstraint(Sketcher.Constraint("Radius", 0, Q("6.5 mm")))
sketch7.addConstraint(Sketcher.Constraint("Radius", 1, Q("6.2 mm")))
sketch7.addConstraint(Sketcher.Constraint("DistanceX", 1, 3, -1, 1, Q("5 mm")))
sketch7.addConstraint(Sketcher.Constraint("DistanceY", -1, 1, 0, 3, Q("15.2 mm")))
sketch7.addConstraint(Sketcher.Constraint("DistanceY", -1, 1, 1, 3, Q("10.7 mm")))
sketch7.setExpression("Constraints[6]", "Params.sketch7_radius")
sketch7.setExpression("Constraints[7]", "Params.sketch7_radius2")
pocket1 = doc.addObject("PartDesign::Pocket", "Pocket")
body.addObject(pocket1)
pocket1.Profile = sketch7
pocket1.setExpression("Length", "Params.pocket1_length")
doc.recompute()

fillet = doc.addObject("PartDesign::Fillet", "Fillet")
body.addObject(fillet)
fillet.Base = (pocket1, edges_at(pocket1, [
    (42.4, 13.2, -38),
    (42.4, 13.2, 38),
    (-42.4, 13.2, 38),
    (-42.4, 13.2, -38),
]))
fillet.setExpression("Radius", "Params.fillet_radius")

# Sketch on XZ plane
sketch8 = doc.addObject("Sketcher::SketchObject", "Sketch007")
body.addObject(sketch8)
sketch8.AttachmentSupport = (doc.XZ_Plane, [""])
sketch8.MapMode = "FlatFace"
sketch8.addGeometry(Part.LineSegment(App.Vector(-41.4, 31.9, 0), App.Vector(-38.7, 30.3, 0)), False)
sketch8.addGeometry(Part.LineSegment(App.Vector(-38.7, 30.3, 0), App.Vector(-36, 31.9, 0)), False)
sketch8.addGeometry(Part.LineSegment(App.Vector(-36, 31.9, 0), App.Vector(-36, 35, 0)), False)
sketch8.addGeometry(Part.LineSegment(App.Vector(-36, 35, 0), App.Vector(-38.7, 36.6, 0)), False)
sketch8.addGeometry(Part.LineSegment(App.Vector(-38.7, 36.6, 0), App.Vector(-41.4, 35, 0)), False)
sketch8.addGeometry(Part.LineSegment(App.Vector(-41.4, 35, 0), App.Vector(-41.4, 31.9, 0)), False)
sketch8.addGeometry(Part.LineSegment(App.Vector(41.4, 31.9, 0), App.Vector(41.4, 35, 0)), False)
sketch8.addGeometry(Part.LineSegment(App.Vector(41.4, 35, 0), App.Vector(38.7, 36.6, 0)), False)
sketch8.addGeometry(Part.LineSegment(App.Vector(38.7, 36.6, 0), App.Vector(36, 35, 0)), False)
sketch8.addGeometry(Part.LineSegment(App.Vector(36, 35, 0), App.Vector(36, 31.9, 0)), False)
sketch8.addGeometry(Part.LineSegment(App.Vector(36, 31.9, 0), App.Vector(38.7, 30.3, 0)), False)
sketch8.addGeometry(Part.LineSegment(App.Vector(38.7, 30.3, 0), App.Vector(41.4, 31.9, 0)), False)
sketch8.addGeometry(Part.LineSegment(App.Vector(41.4, -35, 0), App.Vector(41.4, -31.9, 0)), False)
sketch8.addGeometry(Part.LineSegment(App.Vector(41.4, -31.9, 0), App.Vector(38.7, -30.3, 0)), False)
sketch8.addGeometry(Part.LineSegment(App.Vector(38.7, -30.3, 0), App.Vector(36, -31.9, 0)), False)
sketch8.addGeometry(Part.LineSegment(App.Vector(36, -31.9, 0), App.Vector(36, -35, 0)), False)
sketch8.addGeometry(Part.LineSegment(App.Vector(36, -35, 0), App.Vector(38.7, -36.6, 0)), False)
sketch8.addGeometry(Part.LineSegment(App.Vector(38.7, -36.6, 0), App.Vector(41.4, -35, 0)), False)
sketch8.addGeometry(Part.LineSegment(App.Vector(-36, -35, 0), App.Vector(-36, -31.9, 0)), False)
sketch8.addGeometry(Part.LineSegment(App.Vector(-36, -31.9, 0), App.Vector(-38.7, -30.3, 0)), False)
sketch8.addGeometry(Part.LineSegment(App.Vector(-38.7, -30.3, 0), App.Vector(-41.4, -31.9, 0)), False)
sketch8.addGeometry(Part.LineSegment(App.Vector(-41.4, -31.9, 0), App.Vector(-41.4, -35, 0)), False)
sketch8.addGeometry(Part.LineSegment(App.Vector(-41.4, -35, 0), App.Vector(-38.7, -36.6, 0)), False)
sketch8.addGeometry(Part.LineSegment(App.Vector(-38.7, -36.6, 0), App.Vector(-36, -35, 0)), False)
sketch8.addConstraint(Sketcher.Constraint("Coincident", 0, 2, 1, 1))
sketch8.addConstraint(Sketcher.Constraint("Coincident", 1, 2, 2, 1))
sketch8.addConstraint(Sketcher.Constraint("Coincident", 2, 2, 3, 1))
sketch8.addConstraint(Sketcher.Constraint("Coincident", 3, 2, 4, 1))
sketch8.addConstraint(Sketcher.Constraint("Coincident", 4, 2, 5, 1))
sketch8.addConstraint(Sketcher.Constraint("Coincident", 5, 2, 0, 1))
sketch8.addConstraint(Sketcher.Constraint("Coincident", 6, 2, 7, 1))
sketch8.addConstraint(Sketcher.Constraint("Coincident", 7, 2, 8, 1))
sketch8.addConstraint(Sketcher.Constraint("Coincident", 8, 2, 9, 1))
sketch8.addConstraint(Sketcher.Constraint("Coincident", 9, 2, 10, 1))
sketch8.addConstraint(Sketcher.Constraint("Coincident", 10, 2, 11, 1))
sketch8.addConstraint(Sketcher.Constraint("Coincident", 11, 2, 6, 1))
sketch8.addConstraint(Sketcher.Constraint("Coincident", 12, 2, 13, 1))
sketch8.addConstraint(Sketcher.Constraint("Coincident", 13, 2, 14, 1))
sketch8.addConstraint(Sketcher.Constraint("Coincident", 14, 2, 15, 1))
sketch8.addConstraint(Sketcher.Constraint("Coincident", 15, 2, 16, 1))
sketch8.addConstraint(Sketcher.Constraint("Coincident", 16, 2, 17, 1))
sketch8.addConstraint(Sketcher.Constraint("Coincident", 17, 2, 12, 1))
sketch8.addConstraint(Sketcher.Constraint("Coincident", 18, 2, 19, 1))
sketch8.addConstraint(Sketcher.Constraint("Coincident", 19, 2, 20, 1))
sketch8.addConstraint(Sketcher.Constraint("Coincident", 20, 2, 21, 1))
sketch8.addConstraint(Sketcher.Constraint("Coincident", 21, 2, 22, 1))
sketch8.addConstraint(Sketcher.Constraint("Coincident", 22, 2, 23, 1))
sketch8.addConstraint(Sketcher.Constraint("Coincident", 23, 2, 18, 1))
sketch8.addConstraint(Sketcher.Constraint("Vertical", 2))
sketch8.addConstraint(Sketcher.Constraint("Vertical", 5))
sketch8.addConstraint(Sketcher.Constraint("Vertical", 6))
sketch8.addConstraint(Sketcher.Constraint("Vertical", 9))
sketch8.addConstraint(Sketcher.Constraint("Vertical", 12))
sketch8.addConstraint(Sketcher.Constraint("Vertical", 15))
sketch8.addConstraint(Sketcher.Constraint("Vertical", 18))
sketch8.addConstraint(Sketcher.Constraint("Vertical", 21))
sketch8.addConstraint(Sketcher.Constraint("Symmetric", 5, 2, 12, 2, -1, 1))
sketch8.addConstraint(Sketcher.Constraint("Symmetric", 0, 2, 13, 2, -1, 1))
sketch8.addConstraint(Sketcher.Constraint("Symmetric", 1, 2, 14, 2, -1, 1))
sketch8.addConstraint(Sketcher.Constraint("Symmetric", 3, 2, 16, 2, -1, 1))
sketch8.addConstraint(Sketcher.Constraint("Symmetric", 9, 2, 18, 2, -1, 1))
sketch8.addConstraint(Sketcher.Constraint("Symmetric", 10, 2, 19, 2, -1, 1))
sketch8.addConstraint(Sketcher.Constraint("Symmetric", 11, 2, 20, 2, -1, 1))
sketch8.addConstraint(Sketcher.Constraint("Symmetric", 7, 2, 22, 2, -1, 1))
sketch8.addConstraint(Sketcher.Constraint("Symmetric", 4, 2, 6, 2, -2))
sketch8.addConstraint(Sketcher.Constraint("Symmetric", 3, 2, 7, 2, -2))
sketch8.addConstraint(Sketcher.Constraint("Symmetric", 2, 2, 8, 2, -2))
sketch8.addConstraint(Sketcher.Constraint("Symmetric", 0, 2, 10, 2, -2))
sketch8.addConstraint(Sketcher.Constraint("Parallel", 0, 3))
sketch8.addConstraint(Sketcher.Constraint("Parallel", 1, 4))
sketch8.addConstraint(Sketcher.Constraint("Parallel", 3, 7))
sketch8.addConstraint(Sketcher.Constraint("Parallel", 7, 10))
sketch8.addConstraint(Sketcher.Constraint("Parallel", 8, 11))
sketch8.addConstraint(Sketcher.Constraint("Parallel", 13, 16))
sketch8.addConstraint(Sketcher.Constraint("Parallel", 14, 17))
sketch8.addConstraint(Sketcher.Constraint("Parallel", 19, 22))
sketch8.addConstraint(Sketcher.Constraint("Parallel", 20, 23))
sketch8.addConstraint(Sketcher.Constraint("Horizontal", 2, 2, 4, 2))
sketch8.addConstraint(Sketcher.Constraint("Horizontal", 1, 2, 5, 2))
sketch8.addConstraint(Sketcher.Constraint("Angle", 0, Q("-30 deg")))
sketch8.addConstraint(Sketcher.Constraint("DistanceX", 0, 2, -1, 1, Q("38.7 mm")))
sketch8.addConstraint(Sketcher.Constraint("DistanceX", 4, 2, 2, 2, Q("5.45 mm")))
sketch8.addConstraint(Sketcher.Constraint("DistanceY", 2, 1, 2, 2, Q("3.146559 mm")))
sketch8.addConstraint(Sketcher.Constraint("DistanceY", 12, 2, 10, 2, Q("62.16247 mm")))
pocket2 = doc.addObject("PartDesign::Pocket", "Pocket001")
body.addObject(pocket2)
pocket2.Profile = sketch8
pocket2.setExpression("Length", "Params.pocket2_length")

# Sketch on XY plane
sketch9 = doc.addObject("Sketcher::SketchObject", "Sketch008")
body.addObject(sketch9)
sketch9.AttachmentSupport = (doc.XY_Plane, [""])
sketch9.MapMode = "FlatFace"
sketch9.AttachmentOffset = App.Placement(App.Vector(0, 0, -38), App.Rotation())
sketch9.addGeometry(Part.LineSegment(App.Vector(6, 26, 0), App.Vector(6, 8, 0)), False)
sketch9.addGeometry(Part.LineSegment(App.Vector(6, 8, 0), App.Vector(-6, 8, 0)), False)
sketch9.addGeometry(Part.LineSegment(App.Vector(-6, 8, 0), App.Vector(-6, 26, 0)), False)
sketch9.addGeometry(Part.LineSegment(App.Vector(-6, 26, 0), App.Vector(6, 26, 0)), False)
sketch9.addConstraint(Sketcher.Constraint("Coincident", 0, 2, 1, 1))
sketch9.addConstraint(Sketcher.Constraint("Coincident", 1, 2, 2, 1))
sketch9.addConstraint(Sketcher.Constraint("Coincident", 2, 2, 3, 1))
sketch9.addConstraint(Sketcher.Constraint("Coincident", 3, 2, 0, 1))
sketch9.addConstraint(Sketcher.Constraint("Vertical", 0))
sketch9.addConstraint(Sketcher.Constraint("Horizontal", 1))
sketch9.addConstraint(Sketcher.Constraint("Vertical", 2))
sketch9.addConstraint(Sketcher.Constraint("Horizontal", 3))
sketch9.addConstraint(Sketcher.Constraint("DistanceY", 0, 2, 0, 1, Q("17.9 mm")))
sketch9.addConstraint(Sketcher.Constraint("DistanceX", 1, 2, 1, 1, Q("11.15 mm")))
sketch9.addConstraint(Sketcher.Constraint("DistanceY", -1, 1, 0, 2, Q("8.5 mm")))
sketch9.addConstraint(Sketcher.Constraint("DistanceX", -1, 1, 0, 2, Q("5.575 mm")))
sketch9.setExpression("Constraints[8]", "Params.sketch9_height")
sketch9.setExpression("Constraints[9]", "Params.sketch9_width")
pocket3 = doc.addObject("PartDesign::Pocket", "Pocket002")
body.addObject(pocket3)
pocket3.Profile = sketch9
pocket3.setExpression("Length", "Params.pocket3_length")
pocket3.Reversed = True

doc.recompute()
